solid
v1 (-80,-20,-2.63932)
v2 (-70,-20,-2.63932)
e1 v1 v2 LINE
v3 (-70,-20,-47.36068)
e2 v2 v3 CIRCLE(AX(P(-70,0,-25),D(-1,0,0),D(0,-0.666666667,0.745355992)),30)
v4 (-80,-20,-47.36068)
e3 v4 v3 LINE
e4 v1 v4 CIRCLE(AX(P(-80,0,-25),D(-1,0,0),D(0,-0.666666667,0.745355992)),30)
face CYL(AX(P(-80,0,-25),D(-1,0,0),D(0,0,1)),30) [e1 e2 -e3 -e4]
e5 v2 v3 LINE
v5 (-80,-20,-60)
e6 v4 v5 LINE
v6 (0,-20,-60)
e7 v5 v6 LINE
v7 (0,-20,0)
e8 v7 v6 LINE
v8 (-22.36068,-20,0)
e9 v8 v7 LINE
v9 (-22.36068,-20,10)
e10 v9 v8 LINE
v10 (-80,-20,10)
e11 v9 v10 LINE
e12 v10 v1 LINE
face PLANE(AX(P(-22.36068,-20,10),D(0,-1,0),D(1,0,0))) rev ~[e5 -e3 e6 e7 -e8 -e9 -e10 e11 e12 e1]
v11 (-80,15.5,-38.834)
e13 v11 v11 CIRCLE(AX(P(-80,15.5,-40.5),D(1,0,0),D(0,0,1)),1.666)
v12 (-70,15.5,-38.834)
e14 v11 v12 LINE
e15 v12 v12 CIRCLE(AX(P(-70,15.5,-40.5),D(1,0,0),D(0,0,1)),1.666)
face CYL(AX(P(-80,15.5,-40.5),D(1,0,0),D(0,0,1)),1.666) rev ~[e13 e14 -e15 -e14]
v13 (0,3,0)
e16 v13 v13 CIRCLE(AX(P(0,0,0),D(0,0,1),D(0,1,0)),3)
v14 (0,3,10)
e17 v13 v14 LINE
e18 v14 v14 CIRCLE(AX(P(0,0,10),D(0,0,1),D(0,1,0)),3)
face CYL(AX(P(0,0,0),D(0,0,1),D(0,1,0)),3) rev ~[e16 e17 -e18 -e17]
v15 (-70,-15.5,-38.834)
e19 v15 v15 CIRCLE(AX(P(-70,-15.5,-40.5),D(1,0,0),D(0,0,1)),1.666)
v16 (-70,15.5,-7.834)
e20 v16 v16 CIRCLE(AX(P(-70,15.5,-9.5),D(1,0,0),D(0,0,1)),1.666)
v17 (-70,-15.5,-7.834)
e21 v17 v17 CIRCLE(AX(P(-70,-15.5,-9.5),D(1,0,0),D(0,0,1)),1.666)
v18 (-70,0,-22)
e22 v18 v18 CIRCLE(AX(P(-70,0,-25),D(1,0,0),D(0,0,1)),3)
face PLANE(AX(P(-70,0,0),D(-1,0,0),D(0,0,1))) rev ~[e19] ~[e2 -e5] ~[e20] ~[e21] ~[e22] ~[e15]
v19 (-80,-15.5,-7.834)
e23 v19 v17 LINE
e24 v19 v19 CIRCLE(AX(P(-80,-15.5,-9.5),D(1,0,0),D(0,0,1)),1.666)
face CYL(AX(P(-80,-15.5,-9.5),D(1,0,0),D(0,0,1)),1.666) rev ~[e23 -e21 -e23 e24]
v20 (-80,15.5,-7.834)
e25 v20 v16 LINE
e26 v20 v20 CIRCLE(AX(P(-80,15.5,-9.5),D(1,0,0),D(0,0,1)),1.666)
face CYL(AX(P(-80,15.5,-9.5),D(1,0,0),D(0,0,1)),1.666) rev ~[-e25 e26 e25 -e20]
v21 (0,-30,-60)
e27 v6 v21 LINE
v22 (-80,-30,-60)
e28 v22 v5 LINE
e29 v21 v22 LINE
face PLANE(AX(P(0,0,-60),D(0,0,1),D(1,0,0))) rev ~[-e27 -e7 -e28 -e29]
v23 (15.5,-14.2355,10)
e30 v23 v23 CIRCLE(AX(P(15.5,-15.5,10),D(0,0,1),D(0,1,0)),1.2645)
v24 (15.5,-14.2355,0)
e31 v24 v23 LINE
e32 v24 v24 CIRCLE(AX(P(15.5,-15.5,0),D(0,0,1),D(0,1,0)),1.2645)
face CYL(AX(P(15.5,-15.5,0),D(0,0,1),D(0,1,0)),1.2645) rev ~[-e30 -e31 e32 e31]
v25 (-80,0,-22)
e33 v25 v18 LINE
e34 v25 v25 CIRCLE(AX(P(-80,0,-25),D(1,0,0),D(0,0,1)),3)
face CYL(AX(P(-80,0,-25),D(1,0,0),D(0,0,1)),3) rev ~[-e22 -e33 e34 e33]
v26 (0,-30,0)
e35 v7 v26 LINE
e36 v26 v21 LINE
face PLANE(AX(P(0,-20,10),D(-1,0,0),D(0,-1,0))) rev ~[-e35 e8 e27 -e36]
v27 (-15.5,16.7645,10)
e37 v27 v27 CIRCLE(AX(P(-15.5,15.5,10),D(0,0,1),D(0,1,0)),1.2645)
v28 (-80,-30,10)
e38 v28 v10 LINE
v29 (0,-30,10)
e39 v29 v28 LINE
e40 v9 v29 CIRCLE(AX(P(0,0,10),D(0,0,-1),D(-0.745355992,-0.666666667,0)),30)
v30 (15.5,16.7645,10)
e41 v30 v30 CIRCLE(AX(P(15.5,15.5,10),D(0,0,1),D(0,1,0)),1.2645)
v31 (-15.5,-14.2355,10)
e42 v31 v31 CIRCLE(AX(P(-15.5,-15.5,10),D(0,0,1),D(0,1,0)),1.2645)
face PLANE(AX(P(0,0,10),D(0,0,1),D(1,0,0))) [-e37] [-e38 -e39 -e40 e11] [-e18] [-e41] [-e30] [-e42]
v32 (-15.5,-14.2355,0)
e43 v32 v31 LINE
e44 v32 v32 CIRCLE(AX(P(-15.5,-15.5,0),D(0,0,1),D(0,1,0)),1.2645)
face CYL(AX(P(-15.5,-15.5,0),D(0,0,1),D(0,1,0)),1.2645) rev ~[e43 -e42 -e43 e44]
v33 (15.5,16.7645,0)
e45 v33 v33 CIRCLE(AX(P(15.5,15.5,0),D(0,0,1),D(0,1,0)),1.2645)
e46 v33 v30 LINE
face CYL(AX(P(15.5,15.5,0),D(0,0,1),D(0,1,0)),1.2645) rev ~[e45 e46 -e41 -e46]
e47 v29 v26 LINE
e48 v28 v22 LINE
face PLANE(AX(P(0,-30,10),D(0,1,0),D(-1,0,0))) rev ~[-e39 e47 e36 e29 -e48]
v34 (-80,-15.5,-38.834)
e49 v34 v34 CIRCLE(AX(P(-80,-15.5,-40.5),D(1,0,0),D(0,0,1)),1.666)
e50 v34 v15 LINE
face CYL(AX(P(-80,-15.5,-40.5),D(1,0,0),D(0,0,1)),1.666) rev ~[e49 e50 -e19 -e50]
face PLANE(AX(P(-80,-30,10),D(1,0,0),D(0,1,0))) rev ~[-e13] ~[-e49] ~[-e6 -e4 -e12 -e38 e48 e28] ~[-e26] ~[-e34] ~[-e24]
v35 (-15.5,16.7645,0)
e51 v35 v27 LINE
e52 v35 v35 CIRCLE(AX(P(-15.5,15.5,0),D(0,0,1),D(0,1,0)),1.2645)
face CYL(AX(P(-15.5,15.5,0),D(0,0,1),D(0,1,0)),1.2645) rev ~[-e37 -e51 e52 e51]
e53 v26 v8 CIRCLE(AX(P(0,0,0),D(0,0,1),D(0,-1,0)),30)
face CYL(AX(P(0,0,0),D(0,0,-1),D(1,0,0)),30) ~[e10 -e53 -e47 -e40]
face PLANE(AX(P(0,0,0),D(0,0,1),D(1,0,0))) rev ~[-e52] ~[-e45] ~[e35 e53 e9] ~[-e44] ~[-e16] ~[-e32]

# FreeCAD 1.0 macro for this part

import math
import FreeCAD as App
import Part
import Sketcher

V = App.Vector
Q = App.Units.Quantity

doc = App.newDocument("Part")
body = doc.addObject("PartDesign::Body", "Body")

sketch1 = body.newObject("Sketcher::SketchObject", "Sketch")
sketch1.AttachmentSupport = (doc.getObject("XY_Plane"), [""])
sketch1.MapMode = "FlatFace"
sketch1.addGeometry(Part.Circle(V(0, 0, 0), V(0, 0, 1), 30), False)
sketch1.addConstraint([
    Sketcher.Constraint("Coincident", 0, 3, -1, 1),
    Sketcher.Constraint("Diameter", 0, Q("60 mm")),
])
pad1 = body.newObject("PartDesign::Pad", "Pad")
pad1.Profile = sketch1
pad1.Length = 10

sketch2 = body.newObject("Sketcher::SketchObject", "Sketch001")
sketch2.AttachmentSupport = (doc.getObject("XY_Plane"), [""])
sketch2.MapMode = "FlatFace"
sketch2.AttachmentOffset = App.Placement(V(0, 0, 10), App.Rotation())
sketch2.addGeometry([
    Part.LineSegment(V(-80, -30, 0), V(0, -30, 0)),
    Part.LineSegment(V(0, -30, 0), V(0, -20, 0)),
    Part.LineSegment(V(0, -20, 0), V(-80, -20, 0)),
    Part.LineSegment(V(-80, -20, 0), V(-80, -30, 0)),
], False)
sketch2.addConstraint([
    Sketcher.Constraint("Coincident", 0, 2, 1, 1),
    Sketcher.Constraint("Coincident", 1, 2, 2, 1),
    Sketcher.Constraint("Coincident", 2, 2, 3, 1),
    Sketcher.Constraint("Coincident", 3, 2, 0, 1),
    Sketcher.Constraint("Horizontal", 0),
    Sketcher.Constraint("Vertical", 1),
    Sketcher.Constraint("Horizontal", 2),
    Sketcher.Constraint("Vertical", 3),
    Sketcher.Constraint("PointOnObject", 0, 2, -2),
    Sketcher.Constraint("DistanceX", 0, 1, 0, 2, Q("80 mm")),
    Sketcher.Constraint("DistanceY", 1, 1, 1, 2, Q("10 mm")),
    Sketcher.Constraint("DistanceY", 0, 2, -1, 1, Q("30 mm")),
])
pad2 = body.newObject("PartDesign::Pad", "Pad001")
pad2.Profile = sketch2
pad2.Length = 70
pad2.Reversed = True

sketch3 = body.newObject("Sketcher::SketchObject", "Sketch002")
sketch3.AttachmentSupport = (doc.getObject("YZ_Plane"), [""])
sketch3.MapMode = "FlatFace"
sketch3.AttachmentOffset = App.Placement(V(0, 0, -80), App.Rotation())
sketch3.addGeometry([
    Part.LineSegment(V(-20, -47, 0), V(-20, -3, 0)),
    Part.ArcOfCircle(Part.Circle(V(0, -25, 0), V(0, 0, 1), 30), math.radians(-132), math.radians(132)),
], False)
sketch3.addConstraint([
    Sketcher.Constraint("Coincident", 0, 1, 1, 1),
    Sketcher.Constraint("Coincident", 1, 2, 0, 2),
    Sketcher.Constraint("Vertical", 0),
    Sketcher.Constraint("PointOnObject", 1, 3, -2),
    Sketcher.Constraint("Radius", 1, Q("30 mm")),
    Sketcher.Constraint("DistanceY", 1, 3, -1, 1, Q("25 mm")),
    Sketcher.Constraint("DistanceX", 0, 1, -1, 1, Q("20 mm")),
])
pad3 = body.newObject("PartDesign::Pad", "Pad002")
pad3.Profile = sketch3
pad3.Length = 10

sketch4 = body.newObject("Sketcher::SketchObject", "Sketch003")
sketch4.AttachmentSupport = (doc.getObject("XY_Plane"), [""])
sketch4.MapMode = "FlatFace"
sketch4.addGeometry([
    Part.Circle(V(-15.5, 15.5, 0), V(0, 0, 1), 1.3),
    Part.Circle(V(15.5, 15.5, 0), V(0, 0, 1), 1.3),
    Part.Circle(V(15.5, -15.5, 0), V(0, 0, 1), 1.3),
    Part.Circle(V(-15.5, -15.5, 0), V(0, 0, 1), 1.3),
], False)
sketch4.addConstraint([
    Sketcher.Constraint("Equal", 0, 1),
    Sketcher.Constraint("Equal", 1, 2),
    Sketcher.Constraint("Equal", 2, 3),
    Sketcher.Constraint("Symmetric", 0, 3, 2, 3, -1, 1),
    Sketcher.Constraint("Symmetric", 1, 3, 3, 3, -1, 1),
    Sketcher.Constraint("Symmetric", 0, 3, 1, 3, -2),
    Sketcher.Constraint("Diameter", 0, Q("2.529 mm")),
    Sketcher.Constraint("DistanceX", 0, 3, 1, 3, Q("31 mm")),
    Sketcher.Constraint("DistanceY", 2, 3, 1, 3, Q("31 mm")),
])
doc.recompute()
hole = body.newObject("PartDesign::Hole", "Hole")
hole.Profile = sketch4
hole.ThreadType = "None"
hole.Diameter = 2.529
hole.DepthType = "Dimension"
hole.Depth = 10
hole.DrillPoint = "Angled"
hole.DrillPointAngle = 118
hole.Reversed = True

sketch5 = body.newObject("Sketcher::SketchObject", "Sketch004")
sketch5.AttachmentSupport = (doc.getObject("XY_Plane"), [""])
sketch5.MapMode = "FlatFace"
sketch5.addGeometry(Part.Circle(V(0, 0, 0), V(0, 0, 1), 3), False)
sketch5.addConstraint([
    Sketcher.Constraint("Coincident", 0, 3, -1, 1),
    Sketcher.Constraint("Diameter", 0, Q("6 mm")),
])
doc.recompute()
hole2 = body.newObject("PartDesign::Hole", "Hole001")
hole2.Profile = sketch5
hole2.ThreadType = "None"
hole2.Diameter = 6
hole2.DepthType = "Dimension"
hole2.Depth = 10
hole2.DrillPoint = "Angled"
hole2.DrillPointAngle = 118
hole2.Reversed = True

sketch6 = body.newObject("Sketcher::SketchObject", "Sketch005")
sketch6.AttachmentSupport = (doc.getObject("YZ_Plane"), [""])
sketch6.MapMode = "FlatFace"
sketch6.AttachmentOffset = App.Placement(V(0, 0, -80), App.Rotation())
sketch6.addGeometry([
    Part.Circle(V(15.5, -40.5, 0), V(0, 0, 1), 1.7),
    Part.Circle(V(15.5, -9.5, 0), V(0, 0, 1), 1.7),
    Part.Circle(V(-15.5, -40.5, 0), V(0, 0, 1), 1.7),
    Part.Circle(V(-15.5, -9.5, 0), V(0, 0, 1), 1.7),
], False)
sketch6.addConstraint([
    Sketcher.Constraint("Equal", 0, 1),
    Sketcher.Constraint("Equal", 1, 2),
    Sketcher.Constraint("Equal", 2, 3),
    Sketcher.Constraint("Symmetric", 0, 3, 2, 3, -2),
    Sketcher.Constraint("Symmetric", 1, 3, 3, 3, -2),
    Sketcher.Constraint("Vertical", 0, 3, 1, 3),
    Sketcher.Constraint("Diameter", 0, Q("3.332 mm")),
    Sketcher.Constraint("DistanceY", 0, 3, 1, 3, Q("31 mm")),
    Sketcher.Constraint("DistanceX", 2, 3, 0, 3, Q("31 mm")),
    Sketcher.Constraint("DistanceY", 0, 3, -1, 1, Q("40.5 mm")),
])
doc.recompute()
hole3 = body.newObject("PartDesign::Hole", "Hole002")
hole3.Profile = sketch6
hole3.ThreadType = "None"
hole3.Diameter = 3.332
hole3.DepthType = "Dimension"
hole3.Depth = 40
hole3.DrillPoint = "Angled"
hole3.DrillPointAngle = 118
hole3.Reversed = True

sketch7 = body.newObject("Sketcher::SketchObject", "Sketch006")
sketch7.AttachmentSupport = (doc.getObject("YZ_Plane"), [""])
sketch7.MapMode = "FlatFace"
sketch7.AttachmentOffset = App.Placement(V(0, 0, -80), App.Rotation())
sketch7.addGeometry(Part.Circle(V(0, -25, 0), V(0, 0, 1), 3), False)
sketch7.addConstraint([
    Sketcher.Constraint("PointOnObject", 0, 3, -2),
    Sketcher.Constraint("Diameter", 0, Q("6 mm")),
    Sketcher.Constraint("DistanceY", 0, 3, -1, 1, Q("25 mm")),
])
doc.recompute()
hole4 = body.newObject("PartDesign::Hole", "Hole003")
hole4.Profile = sketch7
hole4.ThreadType = "None"
hole4.Diameter = 6
hole4.DepthType = "Dimension"
hole4.Depth = 40
hole4.DrillPoint = "Angled"
hole4.DrillPointAngle = 118
hole4.Reversed = True

doc.recompute()
